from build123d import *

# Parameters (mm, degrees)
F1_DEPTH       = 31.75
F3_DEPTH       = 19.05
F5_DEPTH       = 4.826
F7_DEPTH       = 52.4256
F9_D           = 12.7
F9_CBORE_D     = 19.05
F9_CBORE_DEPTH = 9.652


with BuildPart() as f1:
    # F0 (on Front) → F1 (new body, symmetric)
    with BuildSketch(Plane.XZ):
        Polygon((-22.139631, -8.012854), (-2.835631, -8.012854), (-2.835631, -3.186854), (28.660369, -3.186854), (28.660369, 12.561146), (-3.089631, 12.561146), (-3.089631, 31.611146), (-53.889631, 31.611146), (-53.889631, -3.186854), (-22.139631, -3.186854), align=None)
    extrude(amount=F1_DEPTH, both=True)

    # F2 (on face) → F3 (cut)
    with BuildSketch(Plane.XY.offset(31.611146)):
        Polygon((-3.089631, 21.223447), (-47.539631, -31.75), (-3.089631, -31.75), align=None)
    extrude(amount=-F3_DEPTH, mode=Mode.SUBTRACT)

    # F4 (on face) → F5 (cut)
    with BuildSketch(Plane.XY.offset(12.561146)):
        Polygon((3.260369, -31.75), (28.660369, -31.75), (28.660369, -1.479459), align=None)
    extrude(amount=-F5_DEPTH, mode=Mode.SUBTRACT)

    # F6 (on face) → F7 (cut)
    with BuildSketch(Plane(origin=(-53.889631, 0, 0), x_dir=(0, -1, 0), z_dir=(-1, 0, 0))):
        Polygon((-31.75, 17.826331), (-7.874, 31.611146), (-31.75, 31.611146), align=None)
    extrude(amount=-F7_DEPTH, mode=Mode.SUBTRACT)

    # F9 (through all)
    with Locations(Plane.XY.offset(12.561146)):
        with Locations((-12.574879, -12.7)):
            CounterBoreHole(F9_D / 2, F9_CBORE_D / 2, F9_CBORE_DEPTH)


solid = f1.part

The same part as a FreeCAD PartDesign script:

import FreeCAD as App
import Part
import Sketcher

V = App.Vector
Q = App.Units.Quantity


def add_polygon(sketch, points):
    """Adds a closed chain of lines whose ends are joined by coincident constraints."""
    first, n = sketch.GeometryCount, len(points)
    for a, b in zip(points, points[1:] + points[:1]):
        sketch.addGeometry(Part.LineSegment(App.Vector(*a, 0), App.Vector(*b, 0)), False)
    for i in range(n):
        sketch.addConstraint(Sketcher.Constraint("Coincident", first + i, 2, first + (i + 1) % n, 1))

doc = App.newDocument("Part")
body = doc.addObject("PartDesign::Body", "Body")

sketch1 = body.newObject("Sketcher::SketchObject", "Sketch")
sketch1.AttachmentSupport = (doc.getObject("XZ_Plane"), [""])
sketch1.MapMode = "FlatFace"
add_polygon(sketch1, [(-22.139631, -8.012854), (-2.835631, -8.012854), (-2.835631, -3.186854), (28.660369, -3.186854), (28.660369, 12.561146), (-3.089631, 12.561146), (-3.089631, 31.611146), (-53.889631, 31.611146), (-53.889631, -3.186854), (-22.139631, -3.186854)])
sketch1.addConstraint(Sketcher.Constraint("Horizontal", 0))
sketch1.addConstraint(Sketcher.Constraint("Vertical", 1))
sketch1.addConstraint(Sketcher.Constraint("Horizontal", 2))
sketch1.addConstraint(Sketcher.Constraint("Vertical", 3))
sketch1.addConstraint(Sketcher.Constraint("Horizontal", 4))
sketch1.addConstraint(Sketcher.Constraint("Vertical", 5))
sketch1.addConstraint(Sketcher.Constraint("Horizontal", 6))
sketch1.addConstraint(Sketcher.Constraint("Vertical", 7))
sketch1.addConstraint(Sketcher.Constraint("Horizontal", 8))
sketch1.addConstraint(Sketcher.Constraint("Vertical", 9))
sketch1.addConstraint(Sketcher.Constraint("Horizontal", 2, 2, 7, 2))
sketch1.addConstraint(Sketcher.Constraint("Equal", 4, 8))
sketch1.addConstraint(Sketcher.Constraint("DistanceX", 6, 2, 6, 1, Q("2 in")))
sketch1.addConstraint(Sketcher.Constraint("DistanceX", 0, 1, 0, 2, Q("0.76 in")))
sketch1.addConstraint(Sketcher.Constraint("DistanceX", 4, 2, 4, 1, Q("1.25 in")))
sketch1.addConstraint(Sketcher.Constraint("DistanceY", 1, 1, 1, 2, Q("0.19 in")))
sketch1.addConstraint(Sketcher.Constraint("DistanceY", 3, 1, 3, 2, Q("0.62 in")))
sketch1.addConstraint(Sketcher.Constraint("DistanceY", 5, 1, 5, 2, Q("0.75 in")))
sketch1.addConstraint(Sketcher.Constraint("DistanceX", 0, 2, -1, 1, 2.835631))
sketch1.addConstraint(Sketcher.Constraint("DistanceY", 0, 2, -1, 1, 8.012854))
pad1 = body.newObject("PartDesign::Pad", "Pad")
pad1.Profile = sketch1
pad1.Length = Q("2.5 in")
pad1.Midplane = True

sketch2 = body.newObject("Sketcher::SketchObject", "Sketch001")
sketch2.AttachmentSupport = (doc.getObject("XY_Plane"), [""])
sketch2.MapMode = "FlatFace"
sketch2.AttachmentOffset = App.Placement(V(0, 0, 31.611146), App.Rotation())
add_polygon(sketch2, [(-3.089631, 21.223447), (-47.539631, -31.75), (-3.089631, -31.75)])
sketch2.addConstraint(Sketcher.Constraint("Horizontal", 1))
sketch2.addConstraint(Sketcher.Constraint("Vertical", 2))
sketch2.addConstraint(Sketcher.Constraint("Angle", 0, Q("-130 deg")))
sketch2.addConstraint(Sketcher.Constraint("DistanceX", 1, 1, 1, 2, Q("1.75 in")))
sketch2.addConstraint(Sketcher.Constraint("DistanceY", 0, 2, -1, 1, Q("1.25 in")))
sketch2.addConstraint(Sketcher.Constraint("DistanceX", 0, 2, -1, 1, 47.539631))
pocket1 = body.newObject("PartDesign::Pocket", "Pocket")
pocket1.Profile = sketch2
pocket1.Length = Q("0.75 in")

sketch3 = body.newObject("Sketcher::SketchObject", "Sketch002")
sketch3.AttachmentSupport = (doc.getObject("XY_Plane"), [""])
sketch3.MapMode = "FlatFace"
sketch3.AttachmentOffset = App.Placement(V(0, 0, 12.561146), App.Rotation())
add_polygon(sketch3, [(3.260369, -31.75), (28.660369, -31.75), (28.660369, -1.479459)])
sketch3.addConstraint(Sketcher.Constraint("Horizontal", 0))
sketch3.addConstraint(Sketcher.Constraint("Vertical", 1))
sketch3.addConstraint(Sketcher.Constraint("DistanceX", 0, 1, 0, 2, Q("1 in")))
sketch3.addConstraint(Sketcher.Constraint("Angle", 2, Q("-130 deg")))
sketch3.addConstraint(Sketcher.Constraint("DistanceY", 0, 2, -1, 1, Q("1.25 in")))
sketch3.addConstraint(Sketcher.Constraint("DistanceX", -1, 1, 0, 2, 28.660369))
pocket2 = body.newObject("PartDesign::Pocket", "Pocket001")
pocket2.Profile = sketch3
pocket2.Length = Q("0.19 in")

sketch4 = body.newObject("Sketcher::SketchObject", "Sketch003")
sketch4.AttachmentSupport = (doc.getObject("YZ_Plane"), [""])
sketch4.MapMode = "FlatFace"
sketch4.AttachmentOffset = App.Placement(V(0, 0, -53.889631), App.Rotation())
add_polygon(sketch4, [(31.75, 17.826331), (7.874, 31.611146), (31.75, 31.611146)])
sketch4.addConstraint(Sketcher.Constraint("Horizontal", 1))
sketch4.addConstraint(Sketcher.Constraint("Vertical", 2))
sketch4.addConstraint(Sketcher.Constraint("Angle", 0, Q("150 deg")))
sketch4.addConstraint(Sketcher.Constraint("DistanceX", 1, 1, 1, 2, Q("0.94 in")))
sketch4.addConstraint(Sketcher.Constraint("DistanceX", -1, 1, 0, 2, Q("0.31 in")))
sketch4.addConstraint(Sketcher.Constraint("DistanceY", -1, 1, 2, 2, 17.826331))
pocket3 = body.newObject("PartDesign::Pocket", "Pocket002")
pocket3.Profile = sketch4
pocket3.Length = Q("2.064 in")
pocket3.Reversed = True

sketch5 = body.newObject("Sketcher::SketchObject", "Sketch004")
sketch5.AttachmentSupport = (doc.getObject("XY_Plane"), [""])
sketch5.MapMode = "FlatFace"
sketch5.AttachmentOffset = App.Placement(V(0, 0, 12.561146), App.Rotation())
sketch5.addGeometry(Part.Circle(V(-12.574879, -12.7, 0), V(0, 0, 1), 6.35), False)
sketch5.addConstraint(Sketcher.Constraint("Diameter", 0, Q("0.5 in")))
sketch5.addConstraint(Sketcher.Constraint("DistanceY", 0, 3, -1, 1, Q("0.5 in")))
sketch5.addConstraint(Sketcher.Constraint("DistanceX", 0, 3, -1, 1, 12.574879))
doc.recompute()
hole = body.newObject("PartDesign::Hole", "Hole")
hole.Profile = sketch5
hole.ThreadType = "None"
hole.Diameter = Q("0.5 in")
hole.DepthType = "ThroughAll"
hole.HoleCutType = "Counterbore"
hole.HoleCutDiameter = Q("0.75 in")
hole.HoleCutDepth = Q("0.38 in")

doc.recompute()
